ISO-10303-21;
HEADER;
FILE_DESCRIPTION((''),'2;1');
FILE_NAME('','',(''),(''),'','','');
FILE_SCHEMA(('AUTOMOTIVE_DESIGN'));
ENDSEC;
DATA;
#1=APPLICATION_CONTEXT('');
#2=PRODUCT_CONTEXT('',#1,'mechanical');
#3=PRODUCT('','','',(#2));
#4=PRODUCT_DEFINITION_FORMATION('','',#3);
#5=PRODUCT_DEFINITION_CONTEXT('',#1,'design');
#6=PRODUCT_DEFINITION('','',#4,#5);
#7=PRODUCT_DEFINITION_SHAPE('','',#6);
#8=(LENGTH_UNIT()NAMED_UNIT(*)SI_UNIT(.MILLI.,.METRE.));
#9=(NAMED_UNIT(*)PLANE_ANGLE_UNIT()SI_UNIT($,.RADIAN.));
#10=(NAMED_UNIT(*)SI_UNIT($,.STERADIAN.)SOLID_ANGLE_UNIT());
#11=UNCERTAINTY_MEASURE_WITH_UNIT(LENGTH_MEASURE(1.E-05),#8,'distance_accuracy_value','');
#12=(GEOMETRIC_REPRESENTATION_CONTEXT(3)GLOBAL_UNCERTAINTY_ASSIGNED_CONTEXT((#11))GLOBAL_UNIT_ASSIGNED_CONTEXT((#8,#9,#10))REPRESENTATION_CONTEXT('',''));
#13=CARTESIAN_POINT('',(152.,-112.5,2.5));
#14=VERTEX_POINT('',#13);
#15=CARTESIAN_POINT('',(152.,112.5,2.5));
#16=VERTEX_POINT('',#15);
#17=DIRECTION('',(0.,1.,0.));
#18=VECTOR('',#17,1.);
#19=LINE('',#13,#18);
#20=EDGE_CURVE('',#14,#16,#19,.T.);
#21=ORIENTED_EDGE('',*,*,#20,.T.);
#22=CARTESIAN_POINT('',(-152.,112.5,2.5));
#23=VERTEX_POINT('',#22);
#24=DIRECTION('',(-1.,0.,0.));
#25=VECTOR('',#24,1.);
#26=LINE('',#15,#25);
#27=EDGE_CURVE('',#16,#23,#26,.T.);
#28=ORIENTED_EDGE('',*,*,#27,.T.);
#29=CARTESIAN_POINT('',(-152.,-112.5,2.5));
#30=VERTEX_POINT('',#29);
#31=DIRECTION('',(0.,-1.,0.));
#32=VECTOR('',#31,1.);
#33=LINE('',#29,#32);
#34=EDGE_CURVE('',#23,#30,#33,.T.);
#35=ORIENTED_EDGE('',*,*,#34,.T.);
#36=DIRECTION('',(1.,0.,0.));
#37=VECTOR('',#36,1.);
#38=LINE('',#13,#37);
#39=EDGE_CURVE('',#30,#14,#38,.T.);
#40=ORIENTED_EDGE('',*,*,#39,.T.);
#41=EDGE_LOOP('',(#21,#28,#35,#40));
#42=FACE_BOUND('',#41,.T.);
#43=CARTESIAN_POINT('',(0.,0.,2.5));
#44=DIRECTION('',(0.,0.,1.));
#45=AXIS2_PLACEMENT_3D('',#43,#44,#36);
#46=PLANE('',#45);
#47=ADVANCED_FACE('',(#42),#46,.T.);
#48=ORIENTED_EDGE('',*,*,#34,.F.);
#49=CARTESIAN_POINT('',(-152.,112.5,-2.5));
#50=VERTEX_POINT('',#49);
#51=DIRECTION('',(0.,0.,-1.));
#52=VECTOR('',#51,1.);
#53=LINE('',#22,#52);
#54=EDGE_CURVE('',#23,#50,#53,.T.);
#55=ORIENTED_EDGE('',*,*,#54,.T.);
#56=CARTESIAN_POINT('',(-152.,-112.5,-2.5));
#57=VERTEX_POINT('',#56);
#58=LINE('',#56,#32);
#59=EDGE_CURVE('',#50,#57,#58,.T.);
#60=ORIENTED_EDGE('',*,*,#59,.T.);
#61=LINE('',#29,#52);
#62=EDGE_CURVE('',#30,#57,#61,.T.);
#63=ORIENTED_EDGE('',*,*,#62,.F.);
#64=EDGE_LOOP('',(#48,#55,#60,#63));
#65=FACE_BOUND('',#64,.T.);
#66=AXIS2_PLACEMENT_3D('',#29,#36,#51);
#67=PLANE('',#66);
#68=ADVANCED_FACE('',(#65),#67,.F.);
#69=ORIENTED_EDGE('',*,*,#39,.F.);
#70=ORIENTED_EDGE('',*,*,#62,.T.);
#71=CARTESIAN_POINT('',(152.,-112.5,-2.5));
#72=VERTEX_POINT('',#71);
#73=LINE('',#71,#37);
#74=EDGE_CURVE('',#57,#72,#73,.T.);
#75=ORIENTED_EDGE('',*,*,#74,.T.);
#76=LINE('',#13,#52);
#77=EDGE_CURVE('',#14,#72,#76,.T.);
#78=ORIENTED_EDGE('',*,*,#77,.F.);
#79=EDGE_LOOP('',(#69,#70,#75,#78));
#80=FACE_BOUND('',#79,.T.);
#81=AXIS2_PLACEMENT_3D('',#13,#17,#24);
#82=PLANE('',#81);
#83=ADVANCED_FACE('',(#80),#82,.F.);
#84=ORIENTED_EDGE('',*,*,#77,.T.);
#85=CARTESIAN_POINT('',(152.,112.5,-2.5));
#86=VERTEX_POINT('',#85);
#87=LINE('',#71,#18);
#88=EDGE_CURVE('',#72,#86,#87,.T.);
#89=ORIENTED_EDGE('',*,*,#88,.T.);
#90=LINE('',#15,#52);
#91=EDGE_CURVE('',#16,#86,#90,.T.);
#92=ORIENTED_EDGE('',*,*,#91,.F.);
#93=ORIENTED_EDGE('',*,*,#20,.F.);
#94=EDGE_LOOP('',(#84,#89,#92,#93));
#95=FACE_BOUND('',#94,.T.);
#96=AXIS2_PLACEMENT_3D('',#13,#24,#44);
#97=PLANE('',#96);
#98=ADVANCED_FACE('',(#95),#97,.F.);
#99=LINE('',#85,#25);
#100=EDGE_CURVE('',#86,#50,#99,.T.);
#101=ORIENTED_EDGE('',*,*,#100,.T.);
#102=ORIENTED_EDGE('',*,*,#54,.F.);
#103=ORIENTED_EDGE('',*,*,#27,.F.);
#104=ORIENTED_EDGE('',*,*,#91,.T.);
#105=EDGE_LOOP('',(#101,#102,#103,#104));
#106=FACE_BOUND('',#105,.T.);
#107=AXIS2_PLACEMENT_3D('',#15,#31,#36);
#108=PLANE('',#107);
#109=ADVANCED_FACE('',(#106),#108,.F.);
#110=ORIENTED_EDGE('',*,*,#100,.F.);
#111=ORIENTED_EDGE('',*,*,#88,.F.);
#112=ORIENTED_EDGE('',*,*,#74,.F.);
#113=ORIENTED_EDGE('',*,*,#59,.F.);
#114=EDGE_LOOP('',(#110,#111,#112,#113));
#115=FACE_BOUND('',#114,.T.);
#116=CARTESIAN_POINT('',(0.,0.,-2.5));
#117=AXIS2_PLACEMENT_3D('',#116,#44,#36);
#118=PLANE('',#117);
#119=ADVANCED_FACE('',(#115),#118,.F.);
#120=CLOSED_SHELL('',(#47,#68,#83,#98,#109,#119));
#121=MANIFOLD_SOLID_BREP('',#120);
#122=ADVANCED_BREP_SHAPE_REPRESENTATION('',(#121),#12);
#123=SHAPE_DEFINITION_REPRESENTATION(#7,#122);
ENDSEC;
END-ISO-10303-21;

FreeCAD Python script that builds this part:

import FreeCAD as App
import Part
import Sketcher
Q = App.Units.Quantity

doc = App.newDocument("Part")
body = doc.addObject("PartDesign::Body", "Body")

# Sketch on XY plane
sketch1 = doc.addObject("Sketcher::SketchObject", "Sketch")
body.addObject(sketch1)
sketch1.AttachmentSupport = (doc.XY_Plane, [""])
sketch1.MapMode = "FlatFace"
sketch1.addGeometry(Part.LineSegment(App.Vector(-152, 112, 0), App.Vector(-152, -112, 0)), False)
sketch1.addGeometry(Part.LineSegment(App.Vector(-152, -112, 0), App.Vector(152, -112, 0)), False)
sketch1.addGeometry(Part.LineSegment(App.Vector(152, -112, 0), App.Vector(152, 112, 0)), False)
sketch1.addGeometry(Part.LineSegment(App.Vector(152, 112, 0), App.Vector(-152, 112, 0)), False)
sketch1.addConstraint(Sketcher.Constraint("Coincident", 0, 2, 1, 1))
sketch1.addConstraint(Sketcher.Constraint("Coincident", 1, 2, 2, 1))
sketch1.addConstraint(Sketcher.Constraint("Coincident", 2, 2, 3, 1))
sketch1.addConstraint(Sketcher.Constraint("Coincident", 3, 2, 0, 1))
sketch1.addConstraint(Sketcher.Constraint("Vertical", 0))
sketch1.addConstraint(Sketcher.Constraint("Horizontal", 1))
sketch1.addConstraint(Sketcher.Constraint("Vertical", 2))
sketch1.addConstraint(Sketcher.Constraint("Horizontal", 3))
sketch1.addConstraint(Sketcher.Constraint("Symmetric", 0, 2, 2, 2, -1, 1))
sketch1.addConstraint(Sketcher.Constraint("DistanceX", 1, 1, 1, 2, Q("304 mm")))
sketch1.addConstraint(Sketcher.Constraint("DistanceY", 0, 2, 0, 1, Q("225 mm")))
pad1 = doc.addObject("PartDesign::Pad", "Pad")
body.addObject(pad1)
pad1.Profile = sketch1
pad1.Length = 5
pad1.Midplane = True

doc.recompute()
